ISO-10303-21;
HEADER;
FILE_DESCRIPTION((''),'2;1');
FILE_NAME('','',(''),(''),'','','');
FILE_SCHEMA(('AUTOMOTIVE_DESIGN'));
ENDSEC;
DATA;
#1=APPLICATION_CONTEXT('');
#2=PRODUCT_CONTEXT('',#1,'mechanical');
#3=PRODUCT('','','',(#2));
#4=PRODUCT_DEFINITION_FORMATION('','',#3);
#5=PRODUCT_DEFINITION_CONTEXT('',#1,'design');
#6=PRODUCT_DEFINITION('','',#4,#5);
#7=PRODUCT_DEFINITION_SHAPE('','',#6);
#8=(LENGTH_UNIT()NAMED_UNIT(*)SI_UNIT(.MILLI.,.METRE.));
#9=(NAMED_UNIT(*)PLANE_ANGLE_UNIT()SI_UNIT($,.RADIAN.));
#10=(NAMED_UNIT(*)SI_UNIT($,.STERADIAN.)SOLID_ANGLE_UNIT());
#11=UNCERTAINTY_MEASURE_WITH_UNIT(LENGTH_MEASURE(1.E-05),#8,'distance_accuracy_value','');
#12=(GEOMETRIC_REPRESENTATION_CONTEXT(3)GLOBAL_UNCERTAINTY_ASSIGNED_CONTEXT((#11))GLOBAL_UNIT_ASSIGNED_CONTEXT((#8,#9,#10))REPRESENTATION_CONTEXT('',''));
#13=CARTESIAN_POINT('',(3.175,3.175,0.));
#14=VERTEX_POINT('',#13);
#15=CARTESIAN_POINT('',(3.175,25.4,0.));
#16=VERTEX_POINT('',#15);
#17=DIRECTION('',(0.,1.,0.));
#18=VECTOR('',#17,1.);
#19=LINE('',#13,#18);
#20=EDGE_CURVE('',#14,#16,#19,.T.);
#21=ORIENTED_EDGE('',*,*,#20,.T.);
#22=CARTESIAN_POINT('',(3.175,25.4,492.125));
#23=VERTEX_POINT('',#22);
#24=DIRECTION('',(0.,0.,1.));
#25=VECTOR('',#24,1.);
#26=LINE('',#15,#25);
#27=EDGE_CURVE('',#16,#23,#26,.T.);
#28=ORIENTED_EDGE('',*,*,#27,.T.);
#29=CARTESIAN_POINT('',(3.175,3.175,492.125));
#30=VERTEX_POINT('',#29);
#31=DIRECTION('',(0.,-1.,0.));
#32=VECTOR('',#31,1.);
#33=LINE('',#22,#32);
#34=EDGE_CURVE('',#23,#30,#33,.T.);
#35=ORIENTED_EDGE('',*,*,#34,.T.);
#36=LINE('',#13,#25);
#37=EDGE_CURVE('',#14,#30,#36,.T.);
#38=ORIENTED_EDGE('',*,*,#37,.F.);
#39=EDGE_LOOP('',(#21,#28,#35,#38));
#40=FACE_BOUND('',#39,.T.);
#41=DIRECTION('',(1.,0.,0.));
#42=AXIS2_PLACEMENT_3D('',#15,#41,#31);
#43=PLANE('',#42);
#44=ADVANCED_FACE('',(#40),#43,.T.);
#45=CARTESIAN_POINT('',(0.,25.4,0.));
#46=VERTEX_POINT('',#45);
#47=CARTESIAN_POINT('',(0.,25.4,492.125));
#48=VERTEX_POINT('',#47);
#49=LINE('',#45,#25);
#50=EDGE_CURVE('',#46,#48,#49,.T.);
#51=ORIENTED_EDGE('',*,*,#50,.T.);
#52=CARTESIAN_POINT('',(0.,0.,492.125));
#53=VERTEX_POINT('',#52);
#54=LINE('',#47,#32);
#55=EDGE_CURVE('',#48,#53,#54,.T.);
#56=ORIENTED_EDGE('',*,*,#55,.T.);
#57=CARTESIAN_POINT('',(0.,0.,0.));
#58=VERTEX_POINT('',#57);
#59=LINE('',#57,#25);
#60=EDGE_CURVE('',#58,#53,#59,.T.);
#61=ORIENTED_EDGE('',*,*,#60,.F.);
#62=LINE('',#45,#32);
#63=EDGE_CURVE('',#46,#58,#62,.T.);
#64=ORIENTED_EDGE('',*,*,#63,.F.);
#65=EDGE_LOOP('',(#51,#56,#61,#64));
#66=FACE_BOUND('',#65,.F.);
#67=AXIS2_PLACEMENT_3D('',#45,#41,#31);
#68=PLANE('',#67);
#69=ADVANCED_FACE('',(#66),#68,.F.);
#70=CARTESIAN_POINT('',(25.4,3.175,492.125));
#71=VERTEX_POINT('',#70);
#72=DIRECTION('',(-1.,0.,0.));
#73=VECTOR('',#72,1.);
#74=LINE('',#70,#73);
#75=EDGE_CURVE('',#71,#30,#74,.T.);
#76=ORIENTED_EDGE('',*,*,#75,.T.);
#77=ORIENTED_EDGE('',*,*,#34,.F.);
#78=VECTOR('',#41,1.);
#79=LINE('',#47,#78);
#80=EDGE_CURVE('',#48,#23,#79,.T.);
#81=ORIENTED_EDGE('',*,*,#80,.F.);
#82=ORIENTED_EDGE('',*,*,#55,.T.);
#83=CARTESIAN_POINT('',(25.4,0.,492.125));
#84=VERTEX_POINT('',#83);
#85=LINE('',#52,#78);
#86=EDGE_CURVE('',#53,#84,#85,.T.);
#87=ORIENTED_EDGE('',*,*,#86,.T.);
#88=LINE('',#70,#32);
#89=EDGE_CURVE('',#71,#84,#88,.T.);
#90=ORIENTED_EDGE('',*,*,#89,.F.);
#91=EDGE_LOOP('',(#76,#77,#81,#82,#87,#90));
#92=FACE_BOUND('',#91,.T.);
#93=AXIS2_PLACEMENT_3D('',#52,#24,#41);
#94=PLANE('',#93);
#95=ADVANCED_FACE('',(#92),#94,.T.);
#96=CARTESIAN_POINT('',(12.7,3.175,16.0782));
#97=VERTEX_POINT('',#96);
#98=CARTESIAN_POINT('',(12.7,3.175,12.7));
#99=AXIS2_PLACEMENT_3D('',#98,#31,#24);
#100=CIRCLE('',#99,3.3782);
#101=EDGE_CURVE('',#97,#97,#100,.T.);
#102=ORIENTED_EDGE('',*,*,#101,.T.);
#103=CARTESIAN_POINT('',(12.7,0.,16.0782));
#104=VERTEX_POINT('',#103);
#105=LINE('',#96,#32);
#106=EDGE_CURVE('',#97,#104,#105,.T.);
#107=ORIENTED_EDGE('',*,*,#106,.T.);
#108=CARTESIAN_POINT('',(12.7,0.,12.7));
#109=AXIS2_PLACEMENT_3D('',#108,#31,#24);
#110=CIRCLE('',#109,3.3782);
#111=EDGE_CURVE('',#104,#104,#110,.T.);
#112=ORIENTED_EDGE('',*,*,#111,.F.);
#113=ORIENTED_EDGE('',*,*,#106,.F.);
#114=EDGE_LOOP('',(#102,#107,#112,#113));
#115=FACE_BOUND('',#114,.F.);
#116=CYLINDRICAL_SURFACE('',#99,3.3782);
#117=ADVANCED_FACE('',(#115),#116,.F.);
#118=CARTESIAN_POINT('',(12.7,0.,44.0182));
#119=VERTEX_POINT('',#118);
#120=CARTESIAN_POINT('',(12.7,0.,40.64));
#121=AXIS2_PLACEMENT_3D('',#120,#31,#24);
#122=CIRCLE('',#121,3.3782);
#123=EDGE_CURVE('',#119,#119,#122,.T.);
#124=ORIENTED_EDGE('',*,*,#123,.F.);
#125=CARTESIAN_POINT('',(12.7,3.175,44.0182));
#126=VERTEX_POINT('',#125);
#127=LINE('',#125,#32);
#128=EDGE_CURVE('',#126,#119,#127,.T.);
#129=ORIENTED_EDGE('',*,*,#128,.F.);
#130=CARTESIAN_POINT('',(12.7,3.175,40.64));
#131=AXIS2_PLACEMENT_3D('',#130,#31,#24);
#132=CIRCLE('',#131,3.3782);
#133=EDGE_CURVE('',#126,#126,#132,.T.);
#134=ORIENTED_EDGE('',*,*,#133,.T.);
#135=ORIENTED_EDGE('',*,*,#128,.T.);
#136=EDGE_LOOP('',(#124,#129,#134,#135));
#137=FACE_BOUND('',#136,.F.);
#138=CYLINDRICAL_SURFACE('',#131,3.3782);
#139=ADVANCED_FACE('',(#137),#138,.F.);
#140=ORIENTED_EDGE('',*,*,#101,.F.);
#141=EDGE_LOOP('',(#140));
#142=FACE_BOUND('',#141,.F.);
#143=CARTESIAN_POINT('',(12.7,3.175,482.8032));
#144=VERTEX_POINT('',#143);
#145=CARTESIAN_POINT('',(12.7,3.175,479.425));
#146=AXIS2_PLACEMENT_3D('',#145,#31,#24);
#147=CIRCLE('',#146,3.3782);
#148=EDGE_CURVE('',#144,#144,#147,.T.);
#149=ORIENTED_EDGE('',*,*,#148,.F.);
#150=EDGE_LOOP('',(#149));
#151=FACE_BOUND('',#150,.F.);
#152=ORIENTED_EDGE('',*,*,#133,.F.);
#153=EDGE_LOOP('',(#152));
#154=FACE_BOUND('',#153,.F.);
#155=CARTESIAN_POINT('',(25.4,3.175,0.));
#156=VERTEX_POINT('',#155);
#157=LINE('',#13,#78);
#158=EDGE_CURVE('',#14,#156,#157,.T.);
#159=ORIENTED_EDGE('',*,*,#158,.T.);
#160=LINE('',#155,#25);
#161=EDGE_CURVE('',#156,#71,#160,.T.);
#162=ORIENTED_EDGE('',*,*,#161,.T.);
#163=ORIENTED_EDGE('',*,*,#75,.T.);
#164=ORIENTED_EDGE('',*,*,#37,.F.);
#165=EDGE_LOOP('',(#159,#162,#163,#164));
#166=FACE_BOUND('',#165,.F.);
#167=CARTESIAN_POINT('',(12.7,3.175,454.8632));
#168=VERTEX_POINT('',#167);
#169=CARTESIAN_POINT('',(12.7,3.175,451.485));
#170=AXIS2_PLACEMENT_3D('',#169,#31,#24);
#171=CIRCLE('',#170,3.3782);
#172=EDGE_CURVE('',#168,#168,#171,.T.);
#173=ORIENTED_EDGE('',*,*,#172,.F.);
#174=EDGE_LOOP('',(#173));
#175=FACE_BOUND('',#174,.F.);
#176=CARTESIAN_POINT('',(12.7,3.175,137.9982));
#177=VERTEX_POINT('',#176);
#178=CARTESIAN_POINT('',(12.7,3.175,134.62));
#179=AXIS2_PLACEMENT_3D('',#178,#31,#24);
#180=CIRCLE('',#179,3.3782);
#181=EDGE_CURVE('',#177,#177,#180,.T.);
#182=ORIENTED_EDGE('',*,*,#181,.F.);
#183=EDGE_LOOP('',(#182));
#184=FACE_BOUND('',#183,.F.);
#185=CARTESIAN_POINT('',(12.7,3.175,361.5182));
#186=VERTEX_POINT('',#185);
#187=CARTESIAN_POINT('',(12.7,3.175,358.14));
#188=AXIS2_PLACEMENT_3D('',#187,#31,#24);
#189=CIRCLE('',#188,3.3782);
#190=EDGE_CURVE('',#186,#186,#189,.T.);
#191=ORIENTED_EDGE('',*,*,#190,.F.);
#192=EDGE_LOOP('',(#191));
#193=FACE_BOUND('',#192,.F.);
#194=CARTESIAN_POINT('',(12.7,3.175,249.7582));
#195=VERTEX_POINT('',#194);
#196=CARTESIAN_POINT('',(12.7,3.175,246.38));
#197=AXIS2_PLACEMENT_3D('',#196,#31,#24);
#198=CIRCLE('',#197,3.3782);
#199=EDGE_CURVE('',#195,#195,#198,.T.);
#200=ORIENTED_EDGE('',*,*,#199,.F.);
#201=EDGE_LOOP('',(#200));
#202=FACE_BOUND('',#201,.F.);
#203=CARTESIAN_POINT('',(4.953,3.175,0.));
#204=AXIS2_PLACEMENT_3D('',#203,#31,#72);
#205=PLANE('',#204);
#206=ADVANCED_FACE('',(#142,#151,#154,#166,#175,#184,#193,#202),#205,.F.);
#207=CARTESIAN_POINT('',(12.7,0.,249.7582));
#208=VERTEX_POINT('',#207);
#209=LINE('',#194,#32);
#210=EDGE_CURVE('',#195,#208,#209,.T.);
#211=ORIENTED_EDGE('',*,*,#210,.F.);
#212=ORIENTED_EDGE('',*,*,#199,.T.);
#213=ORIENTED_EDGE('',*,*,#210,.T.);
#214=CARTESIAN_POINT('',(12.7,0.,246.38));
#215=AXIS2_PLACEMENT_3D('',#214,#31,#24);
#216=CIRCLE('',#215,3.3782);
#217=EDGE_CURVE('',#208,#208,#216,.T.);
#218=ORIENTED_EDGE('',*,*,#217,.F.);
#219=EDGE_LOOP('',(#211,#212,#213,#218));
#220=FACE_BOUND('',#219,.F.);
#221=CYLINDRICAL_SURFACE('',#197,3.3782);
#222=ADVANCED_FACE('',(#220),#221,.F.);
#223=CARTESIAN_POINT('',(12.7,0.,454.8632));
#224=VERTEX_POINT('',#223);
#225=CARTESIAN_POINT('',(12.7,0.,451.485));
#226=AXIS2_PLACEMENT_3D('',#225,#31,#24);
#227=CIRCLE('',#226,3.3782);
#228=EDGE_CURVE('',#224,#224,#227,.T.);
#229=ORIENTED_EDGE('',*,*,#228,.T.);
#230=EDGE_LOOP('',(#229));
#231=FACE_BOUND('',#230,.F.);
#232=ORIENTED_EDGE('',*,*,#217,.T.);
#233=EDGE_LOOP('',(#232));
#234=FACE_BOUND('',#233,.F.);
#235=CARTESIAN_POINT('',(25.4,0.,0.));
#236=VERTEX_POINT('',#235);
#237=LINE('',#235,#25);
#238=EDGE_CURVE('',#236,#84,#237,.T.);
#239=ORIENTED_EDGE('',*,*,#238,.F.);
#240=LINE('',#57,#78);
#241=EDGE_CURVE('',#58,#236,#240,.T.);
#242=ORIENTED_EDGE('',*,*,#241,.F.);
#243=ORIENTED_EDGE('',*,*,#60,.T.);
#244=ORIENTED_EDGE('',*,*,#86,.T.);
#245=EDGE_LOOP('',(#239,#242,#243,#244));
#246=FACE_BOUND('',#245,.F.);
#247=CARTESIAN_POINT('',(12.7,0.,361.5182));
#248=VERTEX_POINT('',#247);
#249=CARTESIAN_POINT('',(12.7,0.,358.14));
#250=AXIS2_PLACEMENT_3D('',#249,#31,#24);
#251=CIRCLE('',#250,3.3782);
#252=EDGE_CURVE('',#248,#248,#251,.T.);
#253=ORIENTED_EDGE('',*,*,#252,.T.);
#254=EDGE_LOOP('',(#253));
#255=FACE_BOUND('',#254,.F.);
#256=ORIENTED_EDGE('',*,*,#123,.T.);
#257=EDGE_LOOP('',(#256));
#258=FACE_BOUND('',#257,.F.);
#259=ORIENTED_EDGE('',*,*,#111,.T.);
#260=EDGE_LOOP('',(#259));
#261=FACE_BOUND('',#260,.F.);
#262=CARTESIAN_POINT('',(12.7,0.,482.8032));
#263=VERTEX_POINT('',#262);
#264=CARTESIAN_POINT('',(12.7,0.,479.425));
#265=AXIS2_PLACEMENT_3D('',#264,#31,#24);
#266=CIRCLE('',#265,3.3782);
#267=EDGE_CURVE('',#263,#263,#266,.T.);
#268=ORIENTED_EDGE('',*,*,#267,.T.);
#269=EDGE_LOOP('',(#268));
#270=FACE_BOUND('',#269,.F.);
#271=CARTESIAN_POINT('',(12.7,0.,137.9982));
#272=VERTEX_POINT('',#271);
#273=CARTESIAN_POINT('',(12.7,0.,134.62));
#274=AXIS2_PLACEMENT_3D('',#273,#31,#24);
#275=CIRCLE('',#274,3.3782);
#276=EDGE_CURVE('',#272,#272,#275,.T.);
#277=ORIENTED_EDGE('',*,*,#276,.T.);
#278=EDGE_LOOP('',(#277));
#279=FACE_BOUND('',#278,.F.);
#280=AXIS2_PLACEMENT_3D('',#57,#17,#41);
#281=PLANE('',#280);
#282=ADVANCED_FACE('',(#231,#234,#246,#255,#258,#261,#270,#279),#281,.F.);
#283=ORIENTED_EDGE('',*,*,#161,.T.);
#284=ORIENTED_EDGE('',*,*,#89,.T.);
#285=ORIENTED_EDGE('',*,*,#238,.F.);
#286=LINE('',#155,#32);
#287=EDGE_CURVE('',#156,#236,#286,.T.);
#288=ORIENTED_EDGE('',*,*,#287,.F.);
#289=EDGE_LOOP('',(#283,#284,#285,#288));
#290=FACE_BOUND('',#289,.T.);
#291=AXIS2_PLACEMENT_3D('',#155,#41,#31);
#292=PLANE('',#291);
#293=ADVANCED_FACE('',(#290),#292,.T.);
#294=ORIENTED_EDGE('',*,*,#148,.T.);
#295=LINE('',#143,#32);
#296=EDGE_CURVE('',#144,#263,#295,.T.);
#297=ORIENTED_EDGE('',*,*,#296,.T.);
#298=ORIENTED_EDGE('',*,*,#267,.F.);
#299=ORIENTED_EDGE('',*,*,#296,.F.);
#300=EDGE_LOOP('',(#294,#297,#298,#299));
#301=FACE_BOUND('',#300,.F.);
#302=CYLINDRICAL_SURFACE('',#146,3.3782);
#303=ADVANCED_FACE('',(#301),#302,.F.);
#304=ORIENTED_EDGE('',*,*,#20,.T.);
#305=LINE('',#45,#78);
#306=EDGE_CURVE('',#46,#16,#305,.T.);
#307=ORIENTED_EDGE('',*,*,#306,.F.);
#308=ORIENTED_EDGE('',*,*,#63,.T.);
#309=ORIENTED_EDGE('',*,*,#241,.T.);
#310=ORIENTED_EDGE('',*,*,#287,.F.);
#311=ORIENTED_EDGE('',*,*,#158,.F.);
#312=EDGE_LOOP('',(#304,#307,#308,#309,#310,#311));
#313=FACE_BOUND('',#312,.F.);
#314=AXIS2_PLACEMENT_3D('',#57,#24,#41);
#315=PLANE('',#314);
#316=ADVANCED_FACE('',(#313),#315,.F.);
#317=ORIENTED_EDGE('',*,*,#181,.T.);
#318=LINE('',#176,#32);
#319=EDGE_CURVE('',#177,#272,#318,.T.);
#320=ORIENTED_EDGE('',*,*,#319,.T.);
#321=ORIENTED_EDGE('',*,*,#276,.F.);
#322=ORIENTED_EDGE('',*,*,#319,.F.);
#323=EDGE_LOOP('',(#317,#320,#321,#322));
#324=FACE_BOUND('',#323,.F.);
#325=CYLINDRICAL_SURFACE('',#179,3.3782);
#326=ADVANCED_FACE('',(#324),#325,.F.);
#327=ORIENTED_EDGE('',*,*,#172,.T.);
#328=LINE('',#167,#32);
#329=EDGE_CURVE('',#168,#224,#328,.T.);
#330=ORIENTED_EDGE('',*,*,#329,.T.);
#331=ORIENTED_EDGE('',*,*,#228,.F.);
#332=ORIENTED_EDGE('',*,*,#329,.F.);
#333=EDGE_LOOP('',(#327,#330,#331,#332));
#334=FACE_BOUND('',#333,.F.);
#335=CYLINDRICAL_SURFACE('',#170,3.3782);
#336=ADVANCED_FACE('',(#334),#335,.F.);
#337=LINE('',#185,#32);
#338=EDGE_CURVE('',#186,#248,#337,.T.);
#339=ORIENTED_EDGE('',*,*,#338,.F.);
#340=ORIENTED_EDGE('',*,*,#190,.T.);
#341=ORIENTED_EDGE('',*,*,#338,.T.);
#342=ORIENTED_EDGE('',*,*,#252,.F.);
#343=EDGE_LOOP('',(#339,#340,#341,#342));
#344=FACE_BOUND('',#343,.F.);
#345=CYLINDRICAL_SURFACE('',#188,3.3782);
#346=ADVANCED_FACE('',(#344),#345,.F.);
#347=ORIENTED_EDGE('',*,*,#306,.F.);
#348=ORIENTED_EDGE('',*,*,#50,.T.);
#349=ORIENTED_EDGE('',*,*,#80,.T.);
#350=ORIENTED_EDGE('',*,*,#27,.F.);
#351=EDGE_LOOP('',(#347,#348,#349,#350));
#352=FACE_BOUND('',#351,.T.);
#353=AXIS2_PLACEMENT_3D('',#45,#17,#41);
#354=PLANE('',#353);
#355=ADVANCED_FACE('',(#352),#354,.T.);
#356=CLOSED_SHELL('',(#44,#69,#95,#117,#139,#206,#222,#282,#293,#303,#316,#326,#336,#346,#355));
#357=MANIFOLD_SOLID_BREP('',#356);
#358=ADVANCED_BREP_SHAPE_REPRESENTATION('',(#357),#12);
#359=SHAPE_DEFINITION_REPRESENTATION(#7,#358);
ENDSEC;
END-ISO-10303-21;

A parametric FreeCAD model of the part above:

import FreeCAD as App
import Part
import Sketcher

V = App.Vector
Q = App.Units.Quantity


def add_polygon(sketch, points):
    """Adds a closed chain of lines whose ends are joined by coincident constraints."""
    first, n = sketch.GeometryCount, len(points)
    for a, b in zip(points, points[1:] + points[:1]):
        sketch.addGeometry(Part.LineSegment(App.Vector(*a, 0), App.Vector(*b, 0)), False)
    for i in range(n):
        sketch.addConstraint(Sketcher.Constraint("Coincident", first + i, 2, first + (i + 1) % n, 1))

doc = App.newDocument("Part")
body = doc.addObject("PartDesign::Body", "Body")

sketch1 = doc.addObject("Sketcher::SketchObject", "Sketch")
body.addObject(sketch1)
sketch1.AttachmentSupport = (doc.XY_Plane, [""])
sketch1.MapMode = "FlatFace"
add_polygon(sketch1, [(3.2, 25.4), (0, 25.4), (0, 0), (25.4, 0), (25.4, 3.2), (3.2, 3.2)])
sketch1.addConstraint([
    Sketcher.Constraint("Horizontal", 0),
    Sketcher.Constraint("Vertical", 1),
    Sketcher.Constraint("Horizontal", 2),
    Sketcher.Constraint("Vertical", 3),
    Sketcher.Constraint("Horizontal", 4),
    Sketcher.Constraint("Vertical", 5),
    Sketcher.Constraint("Coincident", 1, 2, -1, 1),
    Sketcher.Constraint("Equal", 2, 1),
    Sketcher.Constraint("Equal", 0, 3),
    Sketcher.Constraint("DistanceX", 2, 1, 2, 2, Q("1 in")),
    Sketcher.Constraint("DistanceX", 0, 2, 0, 1, Q("0.125 in")),
])
pad1 = doc.addObject("PartDesign::Pad", "Pad")
body.addObject(pad1)
pad1.Profile = sketch1
pad1.Length = Q("19.375 in")

sketch2 = doc.addObject("Sketcher::SketchObject", "Sketch001")
body.addObject(sketch2)
sketch2.AttachmentSupport = (doc.XZ_Plane, [""])
sketch2.MapMode = "FlatFace"
sketch2.AttachmentOffset = App.Placement(V(0, 0, -0.125 * 25.4), App.Rotation())
sketch2.addGeometry([
    Part.Circle(V(12.7, 479.4, 0), V(0, 0, 1), 3.4),
    Part.Circle(V(12.7, 12.7, 0), V(0, 0, 1), 3.4),
], False)
sketch2.addConstraint([
    Sketcher.Constraint("Equal", 0, 1),
    Sketcher.Constraint("Vertical", 0, 3, 1, 3),
    Sketcher.Constraint("Diameter", 0, Q("0.266 in")),
    Sketcher.Constraint("DistanceX", -1, 1, 0, 3, Q("0.5 in")),
    Sketcher.Constraint("DistanceY", -1, 1, 1, 3, Q("0.5 in")),
    Sketcher.Constraint("DistanceY", -1, 1, 0, 3, Q("18.875 in")),
])
doc.recompute()
hole = doc.addObject("PartDesign::Hole", "Hole")
body.addObject(hole)
hole.Profile = sketch2
hole.ThreadType = "None"
hole.Diameter = Q("0.266 in")
hole.DepthType = "Dimension"
hole.Depth = Q("1 in")
hole.DrillPoint = "Angled"
hole.DrillPointAngle = 118
hole.Reversed = True

sketch3 = doc.addObject("Sketcher::SketchObject", "Sketch002")
body.addObject(sketch3)
sketch3.AttachmentSupport = (doc.XZ_Plane, [""])
sketch3.MapMode = "FlatFace"
sketch3.AttachmentOffset = App.Placement(V(0, 0, -0.125 * 25.4), App.Rotation())
sketch3.addGeometry(Part.Circle(V(12.7, 451.5, 0), V(0, 0, 1), 3.4), False)
sketch3.addConstraint([
    Sketcher.Constraint("Diameter", 0, Q("0.266 in")),
    Sketcher.Constraint("DistanceX", -1, 1, 0, 3, Q("0.5 in")),
    Sketcher.Constraint("DistanceY", -1, 1, 0, 3, Q("17.775 in")),
])
doc.recompute()
hole2 = doc.addObject("PartDesign::Hole", "Hole001")
body.addObject(hole2)
hole2.Profile = sketch3
hole2.ThreadType = "None"
hole2.Diameter = Q("0.266 in")
hole2.DepthType = "Dimension"
hole2.Depth = Q("1 in")
hole2.DrillPoint = "Angled"
hole2.DrillPointAngle = 118
hole2.Reversed = True

sketch4 = doc.addObject("Sketcher::SketchObject", "Sketch003")
body.addObject(sketch4)
sketch4.AttachmentSupport = (doc.XZ_Plane, [""])
sketch4.MapMode = "FlatFace"
sketch4.AttachmentOffset = App.Placement(V(0, 0, -0.125 * 25.4), App.Rotation())
sketch4.addGeometry(Part.Circle(V(12.7, 40.6, 0), V(0, 0, 1), 3.4), False)
sketch4.addConstraint([
    Sketcher.Constraint("Diameter", 0, Q("0.266 in")),
    Sketcher.Constraint("DistanceX", -1, 1, 0, 3, Q("0.5 in")),
    Sketcher.Constraint("DistanceY", -1, 1, 0, 3, Q("1.6 in")),
])
doc.recompute()
hole3 = doc.addObject("PartDesign::Hole", "Hole002")
body.addObject(hole3)
hole3.Profile = sketch4
hole3.ThreadType = "None"
hole3.Diameter = Q("0.266 in")
hole3.DepthType = "Dimension"
hole3.Depth = Q("1 in")
hole3.DrillPoint = "Angled"
hole3.DrillPointAngle = 118
hole3.Reversed = True

sketch5 = doc.addObject("Sketcher::SketchObject", "Sketch004")
body.addObject(sketch5)
sketch5.AttachmentSupport = (doc.XZ_Plane, [""])
sketch5.MapMode = "FlatFace"
sketch5.AttachmentOffset = App.Placement(V(0, 0, -0.125 * 25.4), App.Rotation())
sketch5.addGeometry([
    Part.Circle(V(12.7, 134.6, 0), V(0, 0, 1), 3.4),
    Part.Circle(V(12.7, 246.4, 0), V(0, 0, 1), 3.4),
    Part.Circle(V(12.7, 358.1, 0), V(0, 0, 1), 3.4),
], False)
sketch5.addConstraint([
    Sketcher.Constraint("Equal", 0, 1),
    Sketcher.Constraint("Equal", 1, 2),
    Sketcher.Constraint("Vertical", 0, 3, 1, 3),
    Sketcher.Constraint("Vertical", 1, 3, 2, 3),
    Sketcher.Constraint("Diameter", 0, Q("0.266 in")),
    Sketcher.Constraint("DistanceX", -1, 1, 0, 3, Q("0.5 in")),
    Sketcher.Constraint("DistanceY", -1, 1, 0, 3, Q("5.3 in")),
    Sketcher.Constraint("DistanceY", -1, 1, 1, 3, Q("9.7 in")),
    Sketcher.Constraint("DistanceY", -1, 1, 2, 3, Q("14.1 in")),
])
doc.recompute()
hole4 = doc.addObject("PartDesign::Hole", "Hole003")
body.addObject(hole4)
hole4.Profile = sketch5
hole4.ThreadType = "None"
hole4.Diameter = Q("0.266 in")
hole4.DepthType = "Dimension"
hole4.Depth = Q("1 in")
hole4.DrillPoint = "Angled"
hole4.DrillPointAngle = 118
hole4.Reversed = True

doc.recompute()
